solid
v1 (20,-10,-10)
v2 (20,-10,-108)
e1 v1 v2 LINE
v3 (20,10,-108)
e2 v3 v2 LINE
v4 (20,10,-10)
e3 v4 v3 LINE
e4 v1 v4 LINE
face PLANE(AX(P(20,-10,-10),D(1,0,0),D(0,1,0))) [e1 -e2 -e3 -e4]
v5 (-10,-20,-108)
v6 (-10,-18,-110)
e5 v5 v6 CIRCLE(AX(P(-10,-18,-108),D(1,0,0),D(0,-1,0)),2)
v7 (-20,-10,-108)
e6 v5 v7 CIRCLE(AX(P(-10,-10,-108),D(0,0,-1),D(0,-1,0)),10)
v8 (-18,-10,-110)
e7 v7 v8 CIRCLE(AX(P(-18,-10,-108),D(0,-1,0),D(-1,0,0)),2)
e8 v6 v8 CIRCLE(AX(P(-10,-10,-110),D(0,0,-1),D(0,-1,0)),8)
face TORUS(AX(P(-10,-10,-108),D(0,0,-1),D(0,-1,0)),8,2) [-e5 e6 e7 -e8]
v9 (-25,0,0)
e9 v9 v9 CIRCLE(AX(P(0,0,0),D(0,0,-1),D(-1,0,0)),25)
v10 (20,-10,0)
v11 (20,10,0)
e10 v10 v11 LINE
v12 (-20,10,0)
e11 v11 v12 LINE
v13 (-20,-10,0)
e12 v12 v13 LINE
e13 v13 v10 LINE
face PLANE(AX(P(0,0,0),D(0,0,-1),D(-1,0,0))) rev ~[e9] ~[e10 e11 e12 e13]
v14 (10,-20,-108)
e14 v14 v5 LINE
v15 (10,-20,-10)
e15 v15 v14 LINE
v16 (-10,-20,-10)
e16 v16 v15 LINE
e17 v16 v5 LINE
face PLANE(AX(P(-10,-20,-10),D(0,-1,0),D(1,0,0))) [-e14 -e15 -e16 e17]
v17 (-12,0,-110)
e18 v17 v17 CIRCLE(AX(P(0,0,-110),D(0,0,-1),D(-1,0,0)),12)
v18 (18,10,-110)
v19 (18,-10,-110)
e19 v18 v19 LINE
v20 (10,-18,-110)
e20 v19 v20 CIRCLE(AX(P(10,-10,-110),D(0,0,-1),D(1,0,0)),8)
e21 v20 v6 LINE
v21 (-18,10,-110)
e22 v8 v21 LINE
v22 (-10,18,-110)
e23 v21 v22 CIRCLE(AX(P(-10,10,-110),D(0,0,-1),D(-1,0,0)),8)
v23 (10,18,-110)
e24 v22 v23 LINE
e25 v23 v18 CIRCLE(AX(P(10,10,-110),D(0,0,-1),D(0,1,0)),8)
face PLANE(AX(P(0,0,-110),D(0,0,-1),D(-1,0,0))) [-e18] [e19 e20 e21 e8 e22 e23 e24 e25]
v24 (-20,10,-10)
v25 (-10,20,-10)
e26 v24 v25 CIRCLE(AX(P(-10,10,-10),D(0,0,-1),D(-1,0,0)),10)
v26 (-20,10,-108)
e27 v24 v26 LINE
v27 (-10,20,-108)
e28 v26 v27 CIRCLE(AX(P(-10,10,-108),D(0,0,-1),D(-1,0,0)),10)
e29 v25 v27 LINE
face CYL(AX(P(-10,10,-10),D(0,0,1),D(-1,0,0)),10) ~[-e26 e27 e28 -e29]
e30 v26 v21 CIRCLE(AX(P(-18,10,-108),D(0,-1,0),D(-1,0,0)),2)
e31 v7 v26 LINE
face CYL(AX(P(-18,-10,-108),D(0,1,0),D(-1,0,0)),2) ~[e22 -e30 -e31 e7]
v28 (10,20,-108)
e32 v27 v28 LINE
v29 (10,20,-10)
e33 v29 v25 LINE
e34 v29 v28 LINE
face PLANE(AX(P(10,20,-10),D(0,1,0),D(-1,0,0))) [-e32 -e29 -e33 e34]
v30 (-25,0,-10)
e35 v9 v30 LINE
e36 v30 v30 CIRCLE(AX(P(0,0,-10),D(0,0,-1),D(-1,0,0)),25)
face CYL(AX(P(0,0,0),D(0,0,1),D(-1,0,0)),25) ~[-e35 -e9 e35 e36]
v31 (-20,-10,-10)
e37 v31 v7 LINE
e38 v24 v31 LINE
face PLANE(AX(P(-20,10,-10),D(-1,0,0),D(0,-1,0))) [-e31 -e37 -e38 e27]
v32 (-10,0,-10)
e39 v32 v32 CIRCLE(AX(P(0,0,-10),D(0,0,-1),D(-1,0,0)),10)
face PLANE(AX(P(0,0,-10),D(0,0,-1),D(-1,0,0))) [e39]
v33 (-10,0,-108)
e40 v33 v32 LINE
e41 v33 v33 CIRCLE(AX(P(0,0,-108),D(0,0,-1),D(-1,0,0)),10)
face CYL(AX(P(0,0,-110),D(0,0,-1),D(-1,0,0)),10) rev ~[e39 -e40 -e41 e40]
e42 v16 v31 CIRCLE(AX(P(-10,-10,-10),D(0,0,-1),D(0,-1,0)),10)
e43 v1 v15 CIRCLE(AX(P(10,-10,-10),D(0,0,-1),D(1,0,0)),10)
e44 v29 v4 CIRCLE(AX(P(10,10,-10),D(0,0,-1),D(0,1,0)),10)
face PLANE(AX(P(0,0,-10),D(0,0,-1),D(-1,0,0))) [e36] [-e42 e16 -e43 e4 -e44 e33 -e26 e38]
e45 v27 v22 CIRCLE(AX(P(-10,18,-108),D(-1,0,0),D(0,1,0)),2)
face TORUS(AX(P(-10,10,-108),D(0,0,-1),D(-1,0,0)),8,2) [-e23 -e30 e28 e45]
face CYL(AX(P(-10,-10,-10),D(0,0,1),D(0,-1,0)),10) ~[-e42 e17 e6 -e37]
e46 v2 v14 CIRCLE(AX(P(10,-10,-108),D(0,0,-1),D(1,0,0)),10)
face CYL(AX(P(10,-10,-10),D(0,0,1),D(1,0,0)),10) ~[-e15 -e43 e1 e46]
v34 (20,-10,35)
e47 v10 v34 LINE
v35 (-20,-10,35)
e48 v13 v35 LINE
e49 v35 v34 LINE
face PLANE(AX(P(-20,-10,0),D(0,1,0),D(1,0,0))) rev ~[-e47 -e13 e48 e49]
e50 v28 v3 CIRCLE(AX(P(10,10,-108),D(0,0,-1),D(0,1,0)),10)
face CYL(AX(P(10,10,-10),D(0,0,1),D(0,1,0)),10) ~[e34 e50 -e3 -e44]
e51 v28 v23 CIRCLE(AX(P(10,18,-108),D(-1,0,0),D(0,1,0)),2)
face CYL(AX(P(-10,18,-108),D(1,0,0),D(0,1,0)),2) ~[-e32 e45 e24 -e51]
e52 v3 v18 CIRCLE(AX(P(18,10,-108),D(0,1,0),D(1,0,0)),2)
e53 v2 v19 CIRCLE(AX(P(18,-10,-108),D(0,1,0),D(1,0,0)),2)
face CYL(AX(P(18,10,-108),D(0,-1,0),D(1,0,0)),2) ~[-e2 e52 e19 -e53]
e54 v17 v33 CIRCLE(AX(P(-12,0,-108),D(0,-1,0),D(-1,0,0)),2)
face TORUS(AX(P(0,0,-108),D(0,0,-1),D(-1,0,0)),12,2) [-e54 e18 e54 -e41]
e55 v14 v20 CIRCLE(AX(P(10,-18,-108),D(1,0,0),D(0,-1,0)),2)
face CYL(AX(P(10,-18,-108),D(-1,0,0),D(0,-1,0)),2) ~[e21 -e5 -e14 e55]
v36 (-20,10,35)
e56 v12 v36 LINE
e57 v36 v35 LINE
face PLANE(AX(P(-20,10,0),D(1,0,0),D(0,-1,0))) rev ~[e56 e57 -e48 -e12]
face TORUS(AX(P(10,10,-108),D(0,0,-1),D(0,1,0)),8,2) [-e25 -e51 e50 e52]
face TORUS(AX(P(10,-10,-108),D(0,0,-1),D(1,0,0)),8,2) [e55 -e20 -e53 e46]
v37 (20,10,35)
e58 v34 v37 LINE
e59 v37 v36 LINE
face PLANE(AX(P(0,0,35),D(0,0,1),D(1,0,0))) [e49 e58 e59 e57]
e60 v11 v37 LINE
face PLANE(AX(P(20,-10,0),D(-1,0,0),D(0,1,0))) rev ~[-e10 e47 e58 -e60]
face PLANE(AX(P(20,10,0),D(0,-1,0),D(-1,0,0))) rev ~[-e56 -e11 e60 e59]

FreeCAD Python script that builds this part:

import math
import FreeCAD as App
import Part
import Sketcher

V = App.Vector
Q = App.Units.Quantity


def edges_at(feature, points):
    """Names of the edges that pass closest to the given points."""
    edges = feature.Shape.Edges
    near = lambda p: min(range(len(edges)), key=lambda i: edges[i].distToShape(Part.Vertex(*p))[0])
    return sorted({f"Edge{near(p) + 1}" for p in points})

doc = App.newDocument("Part")
body = doc.addObject("PartDesign::Body", "Body")

# Sketch on XY plane
sketch1 = body.newObject("Sketcher::SketchObject", "Sketch")
sketch1.AttachmentSupport = (doc.getObject("XY_Plane"), [""])
sketch1.MapMode = "FlatFace"
sketch1.addGeometry(Part.LineSegment(V(-20, 10, 0), V(-20, -10, 0)), False)
sketch1.addGeometry(Part.LineSegment(V(-20, -10, 0), V(20, -10, 0)), False)
sketch1.addGeometry(Part.LineSegment(V(20, -10, 0), V(20, 10, 0)), False)
sketch1.addGeometry(Part.LineSegment(V(20, 10, 0), V(-20, 10, 0)), False)
sketch1.addConstraint(Sketcher.Constraint("Coincident", 0, 2, 1, 1))
sketch1.addConstraint(Sketcher.Constraint("Coincident", 1, 2, 2, 1))
sketch1.addConstraint(Sketcher.Constraint("Coincident", 2, 2, 3, 1))
sketch1.addConstraint(Sketcher.Constraint("Coincident", 3, 2, 0, 1))
sketch1.addConstraint(Sketcher.Constraint("Vertical", 0))
sketch1.addConstraint(Sketcher.Constraint("Horizontal", 1))
sketch1.addConstraint(Sketcher.Constraint("Vertical", 2))
sketch1.addConstraint(Sketcher.Constraint("Horizontal", 3))
sketch1.addConstraint(Sketcher.Constraint("Symmetric", 0, 2, 2, 2, -1, 1))
sketch1.addConstraint(Sketcher.Constraint("DistanceX", 1, 1, 1, 2, Q("40 mm")))
sketch1.addConstraint(Sketcher.Constraint("DistanceY", 0, 2, 0, 1, Q("20 mm")))
pad1 = body.newObject("PartDesign::Pad", "Pad")
pad1.Profile = sketch1
pad1.Length = 35

# Sketch on XY plane
sketch2 = body.newObject("Sketcher::SketchObject", "Sketch001")
sketch2.AttachmentSupport = (doc.getObject("XY_Plane"), [""])
sketch2.MapMode = "FlatFace"
sketch2.addGeometry(Part.Circle(V(0, 0, 0), V(0, 0, 1), 25), False)
sketch2.addConstraint(Sketcher.Constraint("Coincident", 0, 3, -1, 1))
sketch2.addConstraint(Sketcher.Constraint("Diameter", 0, Q("50 mm")))
pad2 = body.newObject("PartDesign::Pad", "Pad001")
pad2.Profile = sketch2
pad2.Length = 10
pad2.Reversed = True

# Sketch on XY plane
sketch3 = body.newObject("Sketcher::SketchObject", "Sketch002")
sketch3.AttachmentSupport = (doc.getObject("XY_Plane"), [""])
sketch3.MapMode = "FlatFace"
sketch3.AttachmentOffset = App.Placement(V(0, 0, -10), App.Rotation())
sketch3.addGeometry(Part.LineSegment(V(10, -20, 0), V(-10, -20, 0)), False)
sketch3.addGeometry(Part.ArcOfCircle(Part.Circle(V(-10, -10, 0), V(0, 0, 1), 10), math.radians(180), math.radians(270)), False)
sketch3.addGeometry(Part.LineSegment(V(-20, -10, 0), V(-20, 10, 0)), False)
sketch3.addGeometry(Part.ArcOfCircle(Part.Circle(V(-10, 10, 0), V(0, 0, 1), 10), math.radians(90), math.radians(180)), False)
sketch3.addGeometry(Part.LineSegment(V(-10, 20, 0), V(10, 20, 0)), False)
sketch3.addGeometry(Part.ArcOfCircle(Part.Circle(V(10, 10, 0), V(0, 0, 1), 10), math.radians(0), math.radians(90)), False)
sketch3.addGeometry(Part.LineSegment(V(20, 10, 0), V(20, -10, 0)), False)
sketch3.addGeometry(Part.ArcOfCircle(Part.Circle(V(10, -10, 0), V(0, 0, 1), 10), math.radians(-90), math.radians(0)), False)
sketch3.addConstraint(Sketcher.Constraint("Tangent", 0, 2, 1, 2))
sketch3.addConstraint(Sketcher.Constraint("Tangent", 1, 1, 2, 1))
sketch3.addConstraint(Sketcher.Constraint("Tangent", 2, 2, 3, 2))
sketch3.addConstraint(Sketcher.Constraint("Tangent", 3, 1, 4, 1))
sketch3.addConstraint(Sketcher.Constraint("Tangent", 4, 2, 5, 2))
sketch3.addConstraint(Sketcher.Constraint("Tangent", 5, 1, 6, 1))
sketch3.addConstraint(Sketcher.Constraint("Tangent", 6, 2, 7, 2))
sketch3.addConstraint(Sketcher.Constraint("Tangent", 7, 1, 0, 1))
sketch3.addConstraint(Sketcher.Constraint("Horizontal", 0))
sketch3.addConstraint(Sketcher.Constraint("Vertical", 2))
sketch3.addConstraint(Sketcher.Constraint("Horizontal", 4))
sketch3.addConstraint(Sketcher.Constraint("Vertical", 6))
sketch3.addConstraint(Sketcher.Constraint("Equal", 1, 3))
sketch3.addConstraint(Sketcher.Constraint("Equal", 3, 5))
sketch3.addConstraint(Sketcher.Constraint("Equal", 5, 7))
sketch3.addConstraint(Sketcher.Constraint("Symmetric", 1, 3, 5, 3, -1, 1))
sketch3.addConstraint(Sketcher.Constraint("Equal", 4, 2))
sketch3.addConstraint(Sketcher.Constraint("Radius", 1, Q("10 mm")))
sketch3.addConstraint(Sketcher.Constraint("DistanceX", 1, 3, -1, 1, Q("10 mm")))
pad3 = body.newObject("PartDesign::Pad", "Pad002")
pad3.Profile = sketch3
pad3.Length = 100
pad3.Reversed = True

# Sketch on XY plane
sketch4 = body.newObject("Sketcher::SketchObject", "Sketch003")
sketch4.AttachmentSupport = (doc.getObject("XY_Plane"), [""])
sketch4.MapMode = "FlatFace"
sketch4.AttachmentOffset = App.Placement(V(0, 0, -110), App.Rotation())
sketch4.addGeometry(Part.Circle(V(0, 0, 0), V(0, 0, 1), 10), False)
sketch4.addConstraint(Sketcher.Constraint("Coincident", 0, 3, -1, 1))
sketch4.addConstraint(Sketcher.Constraint("Diameter", 0, Q("20 mm")))
pocket1 = body.newObject("PartDesign::Pocket", "Pocket")
pocket1.Profile = sketch4
pocket1.Length = 100
pocket1.Reversed = True
doc.recompute()

fillet = body.newObject("PartDesign::Fillet", "Fillet")
fillet.Base = (pocket1, edges_at(pocket1, [
    (17.071, -17.071, -110),
    (0, -20, -110),
    (-17.071, -17.071, -110),
    (-20, 0, -110),
    (-17.071, 17.071, -110),
    (0, 20, -110),
    (17.071, 17.071, -110),
    (20, 0, -110),
    (10, 0, -110),
]))
fillet.Radius = 2

doc.recompute()
